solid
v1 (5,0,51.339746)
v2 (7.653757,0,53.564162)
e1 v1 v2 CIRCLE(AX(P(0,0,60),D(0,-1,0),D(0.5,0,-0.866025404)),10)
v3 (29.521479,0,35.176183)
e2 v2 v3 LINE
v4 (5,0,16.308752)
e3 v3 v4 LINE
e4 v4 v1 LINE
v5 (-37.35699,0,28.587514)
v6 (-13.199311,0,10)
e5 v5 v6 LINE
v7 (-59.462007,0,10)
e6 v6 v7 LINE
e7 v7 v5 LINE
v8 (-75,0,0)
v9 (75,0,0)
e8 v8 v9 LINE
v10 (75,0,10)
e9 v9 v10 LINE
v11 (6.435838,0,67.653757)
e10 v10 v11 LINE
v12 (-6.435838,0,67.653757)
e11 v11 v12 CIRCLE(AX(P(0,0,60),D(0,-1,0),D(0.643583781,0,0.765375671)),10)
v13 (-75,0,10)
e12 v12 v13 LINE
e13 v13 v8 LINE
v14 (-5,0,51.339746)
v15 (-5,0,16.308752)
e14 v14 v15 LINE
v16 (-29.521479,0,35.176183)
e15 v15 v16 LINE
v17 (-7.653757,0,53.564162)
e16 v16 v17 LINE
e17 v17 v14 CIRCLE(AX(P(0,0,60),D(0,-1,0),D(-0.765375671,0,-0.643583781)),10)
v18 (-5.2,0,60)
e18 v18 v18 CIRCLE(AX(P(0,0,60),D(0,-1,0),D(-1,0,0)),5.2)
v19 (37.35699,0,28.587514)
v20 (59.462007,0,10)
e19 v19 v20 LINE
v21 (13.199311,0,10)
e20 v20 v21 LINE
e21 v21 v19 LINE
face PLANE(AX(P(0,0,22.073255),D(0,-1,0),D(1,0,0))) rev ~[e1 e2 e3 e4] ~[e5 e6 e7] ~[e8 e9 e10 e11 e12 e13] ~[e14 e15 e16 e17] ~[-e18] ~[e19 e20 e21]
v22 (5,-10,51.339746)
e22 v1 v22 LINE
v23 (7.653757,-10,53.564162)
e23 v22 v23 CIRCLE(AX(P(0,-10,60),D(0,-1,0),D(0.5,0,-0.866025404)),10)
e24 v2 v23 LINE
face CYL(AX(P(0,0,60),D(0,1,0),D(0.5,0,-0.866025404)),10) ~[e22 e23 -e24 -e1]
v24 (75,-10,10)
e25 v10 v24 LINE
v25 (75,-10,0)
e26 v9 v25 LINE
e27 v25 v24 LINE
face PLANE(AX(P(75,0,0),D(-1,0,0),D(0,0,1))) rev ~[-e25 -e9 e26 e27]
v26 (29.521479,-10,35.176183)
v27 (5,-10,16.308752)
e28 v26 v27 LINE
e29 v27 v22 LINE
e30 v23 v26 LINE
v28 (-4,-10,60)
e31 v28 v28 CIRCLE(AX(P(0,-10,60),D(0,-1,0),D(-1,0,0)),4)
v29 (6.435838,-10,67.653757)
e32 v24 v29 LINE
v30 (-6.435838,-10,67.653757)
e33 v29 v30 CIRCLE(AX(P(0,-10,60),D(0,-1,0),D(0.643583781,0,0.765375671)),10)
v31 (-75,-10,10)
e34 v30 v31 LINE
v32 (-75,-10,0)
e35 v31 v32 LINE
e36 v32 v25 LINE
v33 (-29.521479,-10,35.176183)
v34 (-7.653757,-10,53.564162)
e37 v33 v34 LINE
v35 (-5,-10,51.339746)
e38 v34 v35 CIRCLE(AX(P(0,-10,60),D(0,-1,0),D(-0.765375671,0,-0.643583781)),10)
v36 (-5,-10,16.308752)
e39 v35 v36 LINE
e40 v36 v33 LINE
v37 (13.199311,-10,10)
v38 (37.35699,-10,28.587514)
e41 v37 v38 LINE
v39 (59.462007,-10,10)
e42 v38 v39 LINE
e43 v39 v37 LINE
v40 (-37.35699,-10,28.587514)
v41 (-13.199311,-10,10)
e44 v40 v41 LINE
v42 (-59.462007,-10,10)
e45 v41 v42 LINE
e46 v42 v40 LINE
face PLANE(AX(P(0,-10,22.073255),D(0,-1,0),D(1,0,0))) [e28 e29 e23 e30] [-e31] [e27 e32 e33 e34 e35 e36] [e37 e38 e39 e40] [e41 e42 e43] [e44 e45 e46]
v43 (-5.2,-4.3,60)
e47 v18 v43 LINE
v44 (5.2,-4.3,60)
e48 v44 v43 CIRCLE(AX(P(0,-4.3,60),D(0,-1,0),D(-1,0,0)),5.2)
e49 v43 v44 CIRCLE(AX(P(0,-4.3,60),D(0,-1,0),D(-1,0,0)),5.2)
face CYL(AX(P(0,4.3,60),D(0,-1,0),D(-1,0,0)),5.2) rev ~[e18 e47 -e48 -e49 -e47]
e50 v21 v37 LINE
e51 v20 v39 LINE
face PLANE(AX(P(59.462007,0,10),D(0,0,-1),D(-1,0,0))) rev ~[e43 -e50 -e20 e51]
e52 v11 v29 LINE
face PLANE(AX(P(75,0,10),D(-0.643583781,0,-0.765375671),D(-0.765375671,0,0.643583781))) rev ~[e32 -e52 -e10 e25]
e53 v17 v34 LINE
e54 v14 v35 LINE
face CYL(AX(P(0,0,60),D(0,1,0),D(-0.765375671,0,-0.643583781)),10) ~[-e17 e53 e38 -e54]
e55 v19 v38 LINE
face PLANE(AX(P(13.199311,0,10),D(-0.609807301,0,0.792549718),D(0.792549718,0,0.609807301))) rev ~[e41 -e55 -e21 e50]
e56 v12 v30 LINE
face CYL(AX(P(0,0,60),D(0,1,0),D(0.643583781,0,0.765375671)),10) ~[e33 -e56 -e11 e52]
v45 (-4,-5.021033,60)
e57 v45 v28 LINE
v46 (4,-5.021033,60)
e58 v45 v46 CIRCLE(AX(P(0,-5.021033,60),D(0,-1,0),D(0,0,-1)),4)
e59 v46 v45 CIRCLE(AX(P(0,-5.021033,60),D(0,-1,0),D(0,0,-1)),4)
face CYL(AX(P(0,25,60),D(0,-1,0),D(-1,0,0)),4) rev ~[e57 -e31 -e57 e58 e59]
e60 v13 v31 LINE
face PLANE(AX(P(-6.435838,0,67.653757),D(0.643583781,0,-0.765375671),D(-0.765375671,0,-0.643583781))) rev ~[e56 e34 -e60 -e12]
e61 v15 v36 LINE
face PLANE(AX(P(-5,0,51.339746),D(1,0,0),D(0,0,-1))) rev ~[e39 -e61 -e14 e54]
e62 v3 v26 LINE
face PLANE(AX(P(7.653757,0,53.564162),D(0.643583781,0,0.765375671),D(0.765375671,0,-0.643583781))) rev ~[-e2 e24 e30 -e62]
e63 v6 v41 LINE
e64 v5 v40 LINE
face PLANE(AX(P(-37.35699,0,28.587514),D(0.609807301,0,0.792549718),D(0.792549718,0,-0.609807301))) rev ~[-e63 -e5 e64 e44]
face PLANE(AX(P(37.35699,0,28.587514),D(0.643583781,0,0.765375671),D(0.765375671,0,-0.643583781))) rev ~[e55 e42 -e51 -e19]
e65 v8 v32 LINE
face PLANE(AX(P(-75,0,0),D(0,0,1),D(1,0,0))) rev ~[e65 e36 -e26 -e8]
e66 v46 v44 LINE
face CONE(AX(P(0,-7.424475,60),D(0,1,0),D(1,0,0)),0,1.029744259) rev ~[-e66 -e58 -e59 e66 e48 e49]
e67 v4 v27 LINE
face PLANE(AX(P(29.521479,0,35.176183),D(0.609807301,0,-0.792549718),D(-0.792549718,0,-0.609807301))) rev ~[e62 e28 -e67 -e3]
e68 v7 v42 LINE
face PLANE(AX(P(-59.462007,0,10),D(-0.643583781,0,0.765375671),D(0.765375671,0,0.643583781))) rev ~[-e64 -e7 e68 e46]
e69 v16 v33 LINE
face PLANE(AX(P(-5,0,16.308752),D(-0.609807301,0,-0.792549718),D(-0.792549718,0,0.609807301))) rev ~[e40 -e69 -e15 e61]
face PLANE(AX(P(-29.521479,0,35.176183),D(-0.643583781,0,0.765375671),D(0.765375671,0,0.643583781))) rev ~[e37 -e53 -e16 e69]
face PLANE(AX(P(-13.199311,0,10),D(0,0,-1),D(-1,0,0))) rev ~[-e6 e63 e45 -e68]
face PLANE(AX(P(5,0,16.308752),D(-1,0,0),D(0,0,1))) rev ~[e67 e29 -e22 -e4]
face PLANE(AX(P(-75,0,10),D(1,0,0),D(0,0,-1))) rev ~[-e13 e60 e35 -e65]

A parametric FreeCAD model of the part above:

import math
import FreeCAD as App
import Part
import Sketcher

V = App.Vector
Q = App.Units.Quantity

doc = App.newDocument("Part")
body = doc.addObject("PartDesign::Body", "Body")

sketch1 = body.newObject("Sketcher::SketchObject", "Sketch")
sketch1.AttachmentSupport = (doc.getObject("XZ_Plane"), [""])
sketch1.MapMode = "FlatFace"
sketch1.addGeometry(Part.LineSegment(V(-75, 10, 0), V(-75, 0, 0)), False)
sketch1.addGeometry(Part.LineSegment(V(-75, 0, 0), V(75, 0, 0)), False)
sketch1.addGeometry(Part.LineSegment(V(75, 0, 0), V(75, 10, 0)), False)
sketch1.addGeometry(Part.LineSegment(V(75, 10, 0), V(6.435838, 67.653757, 0)), False)
sketch1.addGeometry(Part.ArcOfCircle(Part.Circle(V(0, 60, 0), V(0, 0, 1), 10), math.radians(49.940425), math.radians(130.059575)), False)
sketch1.addGeometry(Part.LineSegment(V(-6.435838, 67.653757, 0), V(-75, 10, 0)), False)
sketch1.addGeometry(Part.LineSegment(V(-37.35699, 28.587514, 0), V(-13.199311, 10, 0)), False)
sketch1.addGeometry(Part.LineSegment(V(-13.199311, 10, 0), V(-59.462007, 10, 0)), False)
sketch1.addGeometry(Part.LineSegment(V(-59.462007, 10, 0), V(-37.35699, 28.587514, 0)), False)
sketch1.addGeometry(Part.LineSegment(V(13.199311, 10, 0), V(37.35699, 28.587514, 0)), False)
sketch1.addGeometry(Part.LineSegment(V(37.35699, 28.587514, 0), V(59.462007, 10, 0)), False)
sketch1.addGeometry(Part.LineSegment(V(59.462007, 10, 0), V(13.199311, 10, 0)), False)
sketch1.addGeometry(Part.LineSegment(V(-5, 16.308752, 0), V(-29.521479, 35.176183, 0)), False)
sketch1.addGeometry(Part.LineSegment(V(-29.521479, 35.176183, 0), V(-7.653757, 53.564162, 0)), False)
sketch1.addGeometry(Part.ArcOfCircle(Part.Circle(V(0, 60, 0), V(0, 0, 1), 10), math.radians(-139.940425), math.radians(-120)), False)
sketch1.addGeometry(Part.LineSegment(V(-5, 51.339746, 0), V(-5, 16.308752, 0)), False)
sketch1.addGeometry(Part.LineSegment(V(5, 16.308752, 0), V(5, 51.339746, 0)), False)
sketch1.addGeometry(Part.ArcOfCircle(Part.Circle(V(0, 60, 0), V(0, 0, 1), 10), math.radians(-60), math.radians(-40.059575)), False)
sketch1.addGeometry(Part.LineSegment(V(7.653757, 53.564162, 0), V(29.521479, 35.176183, 0)), False)
sketch1.addGeometry(Part.LineSegment(V(29.521479, 35.176183, 0), V(5, 16.308752, 0)), False)
sketch1.addConstraint(Sketcher.Constraint("Coincident", 0, 2, 1, 1))
sketch1.addConstraint(Sketcher.Constraint("Coincident", 1, 2, 2, 1))
sketch1.addConstraint(Sketcher.Constraint("Coincident", 2, 2, 3, 1))
sketch1.addConstraint(Sketcher.Constraint("Tangent", 3, 2, 4, 1))
sketch1.addConstraint(Sketcher.Constraint("Tangent", 4, 2, 5, 1))
sketch1.addConstraint(Sketcher.Constraint("Coincident", 5, 2, 0, 1))
sketch1.addConstraint(Sketcher.Constraint("Coincident", 6, 2, 7, 1))
sketch1.addConstraint(Sketcher.Constraint("Coincident", 7, 2, 8, 1))
sketch1.addConstraint(Sketcher.Constraint("Coincident", 8, 2, 6, 1))
sketch1.addConstraint(Sketcher.Constraint("Coincident", 9, 2, 10, 1))
sketch1.addConstraint(Sketcher.Constraint("Coincident", 10, 2, 11, 1))
sketch1.addConstraint(Sketcher.Constraint("Coincident", 11, 2, 9, 1))
sketch1.addConstraint(Sketcher.Constraint("Coincident", 12, 2, 13, 1))
sketch1.addConstraint(Sketcher.Constraint("Coincident", 13, 2, 14, 1))
sketch1.addConstraint(Sketcher.Constraint("Coincident", 14, 2, 15, 1))
sketch1.addConstraint(Sketcher.Constraint("Coincident", 15, 2, 12, 1))
sketch1.addConstraint(Sketcher.Constraint("Coincident", 16, 2, 17, 1))
sketch1.addConstraint(Sketcher.Constraint("Coincident", 17, 2, 18, 1))
sketch1.addConstraint(Sketcher.Constraint("Coincident", 18, 2, 19, 1))
sketch1.addConstraint(Sketcher.Constraint("Coincident", 19, 2, 16, 1))
sketch1.addConstraint(Sketcher.Constraint("Vertical", 0))
sketch1.addConstraint(Sketcher.Constraint("Horizontal", 1))
sketch1.addConstraint(Sketcher.Constraint("Vertical", 2))
sketch1.addConstraint(Sketcher.Constraint("Horizontal", 7))
sketch1.addConstraint(Sketcher.Constraint("Horizontal", 11))
sketch1.addConstraint(Sketcher.Constraint("Vertical", 15))
sketch1.addConstraint(Sketcher.Constraint("Vertical", 16))
sketch1.addConstraint(Sketcher.Constraint("Coincident", 14, 3, 4, 3))
sketch1.addConstraint(Sketcher.Constraint("Coincident", 17, 3, 4, 3))
sketch1.addConstraint(Sketcher.Constraint("Equal", 4, 14))
sketch1.addConstraint(Sketcher.Constraint("Equal", 14, 17))
sketch1.addConstraint(Sketcher.Constraint("Symmetric", 0, 2, 1, 2, -1, 1))
sketch1.addConstraint(Sketcher.Constraint("Symmetric", 3, 2, 4, 2, -2))
sketch1.addConstraint(Sketcher.Constraint("Symmetric", 8, 2, 9, 2, -2))
sketch1.addConstraint(Sketcher.Constraint("Symmetric", 7, 2, 10, 2, -2))
sketch1.addConstraint(Sketcher.Constraint("Symmetric", 12, 2, 18, 2, -2))
sketch1.addConstraint(Sketcher.Constraint("Symmetric", 15, 2, 19, 2, -2))
sketch1.addConstraint(Sketcher.Constraint("Parallel", 5, 8))
sketch1.addConstraint(Sketcher.Constraint("Parallel", 6, 12))
sketch1.addConstraint(Sketcher.Constraint("Parallel", 8, 13))
sketch1.addConstraint(Sketcher.Constraint("Parallel", 10, 18))
sketch1.addConstraint(Sketcher.Constraint("Parallel", 9, 19))
sketch1.addConstraint(Sketcher.Constraint("Horizontal", 5, 2, 6, 2))
sketch1.addConstraint(Sketcher.Constraint("Radius", 4, Q("10 mm")))
sketch1.addConstraint(Sketcher.Constraint("DistanceX", 1, 1, 1, 2, Q("150 mm")))
sketch1.addConstraint(Sketcher.Constraint("DistanceY", 0, 2, 0, 1, Q("10 mm")))
sketch1.addConstraint(Sketcher.Constraint("DistanceY", -1, 1, 4, 3, Q("60 mm")))
sketch1.addConstraint(Sketcher.Constraint("DistanceX", 14, 2, -1, 1, Q("5 mm")))
sketch1.addConstraint(Sketcher.Constraint("Distance", 12, Q("30.939989 mm")))
sketch1.addConstraint(Sketcher.Constraint("DistanceX", 7, 2, 7, 1, Q("46.262696 mm")))
sketch1.addConstraint(Sketcher.Constraint("DistanceY", 15, 2, 15, 1, Q("35.030993 mm")))
sketch1.addConstraint(Sketcher.Constraint("DistanceX", 6, 2, -1, 1, Q("13.199311 mm")))
sketch1.addConstraint(Sketcher.Constraint("DistanceX", 8, 2, -1, 1, Q("37.35699 mm")))
pad1 = body.newObject("PartDesign::Pad", "Pad")
pad1.Profile = sketch1
pad1.Length = 10

sketch2 = body.newObject("Sketcher::SketchObject", "Sketch001")
sketch2.AttachmentSupport = (doc.getObject("XZ_Plane"), [""])
sketch2.MapMode = "FlatFace"
sketch2.addGeometry(Part.Circle(V(0, 60, 0), V(0, 0, 1), 4), False)
sketch2.addConstraint(Sketcher.Constraint("PointOnObject", 0, 3, -2))
sketch2.addConstraint(Sketcher.Constraint("Diameter", 0, Q("8 mm")))
sketch2.addConstraint(Sketcher.Constraint("DistanceY", -1, 1, 0, 3, Q("60 mm")))
doc.recompute()
hole = body.newObject("PartDesign::Hole", "Hole")
hole.Profile = sketch2
hole.ThreadType = "None"
hole.Diameter = 8
hole.DepthType = "Dimension"
hole.Depth = 25
hole.DrillPoint = "Angled"
hole.DrillPointAngle = 118
hole.Reversed = True

sketch3 = body.newObject("Sketcher::SketchObject", "Sketch002")
sketch3.AttachmentSupport = (doc.getObject("XZ_Plane"), [""])
sketch3.MapMode = "FlatFace"
sketch3.addGeometry(Part.Circle(V(0, 60, 0), V(0, 0, 1), 5.2), False)
sketch3.addConstraint(Sketcher.Constraint("PointOnObject", 0, 3, -2))
sketch3.addConstraint(Sketcher.Constraint("Diameter", 0, Q("10.4 mm")))
sketch3.addConstraint(Sketcher.Constraint("DistanceY", -1, 1, 0, 3, Q("60 mm")))
doc.recompute()
hole2 = body.newObject("PartDesign::Hole", "Hole001")
hole2.Profile = sketch3
hole2.ThreadType = "None"
hole2.Diameter = 10.4
hole2.DepthType = "Dimension"
hole2.Depth = 4.3
hole2.DrillPoint = "Angled"
hole2.DrillPointAngle = 118
hole2.Reversed = True

doc.recompute()
